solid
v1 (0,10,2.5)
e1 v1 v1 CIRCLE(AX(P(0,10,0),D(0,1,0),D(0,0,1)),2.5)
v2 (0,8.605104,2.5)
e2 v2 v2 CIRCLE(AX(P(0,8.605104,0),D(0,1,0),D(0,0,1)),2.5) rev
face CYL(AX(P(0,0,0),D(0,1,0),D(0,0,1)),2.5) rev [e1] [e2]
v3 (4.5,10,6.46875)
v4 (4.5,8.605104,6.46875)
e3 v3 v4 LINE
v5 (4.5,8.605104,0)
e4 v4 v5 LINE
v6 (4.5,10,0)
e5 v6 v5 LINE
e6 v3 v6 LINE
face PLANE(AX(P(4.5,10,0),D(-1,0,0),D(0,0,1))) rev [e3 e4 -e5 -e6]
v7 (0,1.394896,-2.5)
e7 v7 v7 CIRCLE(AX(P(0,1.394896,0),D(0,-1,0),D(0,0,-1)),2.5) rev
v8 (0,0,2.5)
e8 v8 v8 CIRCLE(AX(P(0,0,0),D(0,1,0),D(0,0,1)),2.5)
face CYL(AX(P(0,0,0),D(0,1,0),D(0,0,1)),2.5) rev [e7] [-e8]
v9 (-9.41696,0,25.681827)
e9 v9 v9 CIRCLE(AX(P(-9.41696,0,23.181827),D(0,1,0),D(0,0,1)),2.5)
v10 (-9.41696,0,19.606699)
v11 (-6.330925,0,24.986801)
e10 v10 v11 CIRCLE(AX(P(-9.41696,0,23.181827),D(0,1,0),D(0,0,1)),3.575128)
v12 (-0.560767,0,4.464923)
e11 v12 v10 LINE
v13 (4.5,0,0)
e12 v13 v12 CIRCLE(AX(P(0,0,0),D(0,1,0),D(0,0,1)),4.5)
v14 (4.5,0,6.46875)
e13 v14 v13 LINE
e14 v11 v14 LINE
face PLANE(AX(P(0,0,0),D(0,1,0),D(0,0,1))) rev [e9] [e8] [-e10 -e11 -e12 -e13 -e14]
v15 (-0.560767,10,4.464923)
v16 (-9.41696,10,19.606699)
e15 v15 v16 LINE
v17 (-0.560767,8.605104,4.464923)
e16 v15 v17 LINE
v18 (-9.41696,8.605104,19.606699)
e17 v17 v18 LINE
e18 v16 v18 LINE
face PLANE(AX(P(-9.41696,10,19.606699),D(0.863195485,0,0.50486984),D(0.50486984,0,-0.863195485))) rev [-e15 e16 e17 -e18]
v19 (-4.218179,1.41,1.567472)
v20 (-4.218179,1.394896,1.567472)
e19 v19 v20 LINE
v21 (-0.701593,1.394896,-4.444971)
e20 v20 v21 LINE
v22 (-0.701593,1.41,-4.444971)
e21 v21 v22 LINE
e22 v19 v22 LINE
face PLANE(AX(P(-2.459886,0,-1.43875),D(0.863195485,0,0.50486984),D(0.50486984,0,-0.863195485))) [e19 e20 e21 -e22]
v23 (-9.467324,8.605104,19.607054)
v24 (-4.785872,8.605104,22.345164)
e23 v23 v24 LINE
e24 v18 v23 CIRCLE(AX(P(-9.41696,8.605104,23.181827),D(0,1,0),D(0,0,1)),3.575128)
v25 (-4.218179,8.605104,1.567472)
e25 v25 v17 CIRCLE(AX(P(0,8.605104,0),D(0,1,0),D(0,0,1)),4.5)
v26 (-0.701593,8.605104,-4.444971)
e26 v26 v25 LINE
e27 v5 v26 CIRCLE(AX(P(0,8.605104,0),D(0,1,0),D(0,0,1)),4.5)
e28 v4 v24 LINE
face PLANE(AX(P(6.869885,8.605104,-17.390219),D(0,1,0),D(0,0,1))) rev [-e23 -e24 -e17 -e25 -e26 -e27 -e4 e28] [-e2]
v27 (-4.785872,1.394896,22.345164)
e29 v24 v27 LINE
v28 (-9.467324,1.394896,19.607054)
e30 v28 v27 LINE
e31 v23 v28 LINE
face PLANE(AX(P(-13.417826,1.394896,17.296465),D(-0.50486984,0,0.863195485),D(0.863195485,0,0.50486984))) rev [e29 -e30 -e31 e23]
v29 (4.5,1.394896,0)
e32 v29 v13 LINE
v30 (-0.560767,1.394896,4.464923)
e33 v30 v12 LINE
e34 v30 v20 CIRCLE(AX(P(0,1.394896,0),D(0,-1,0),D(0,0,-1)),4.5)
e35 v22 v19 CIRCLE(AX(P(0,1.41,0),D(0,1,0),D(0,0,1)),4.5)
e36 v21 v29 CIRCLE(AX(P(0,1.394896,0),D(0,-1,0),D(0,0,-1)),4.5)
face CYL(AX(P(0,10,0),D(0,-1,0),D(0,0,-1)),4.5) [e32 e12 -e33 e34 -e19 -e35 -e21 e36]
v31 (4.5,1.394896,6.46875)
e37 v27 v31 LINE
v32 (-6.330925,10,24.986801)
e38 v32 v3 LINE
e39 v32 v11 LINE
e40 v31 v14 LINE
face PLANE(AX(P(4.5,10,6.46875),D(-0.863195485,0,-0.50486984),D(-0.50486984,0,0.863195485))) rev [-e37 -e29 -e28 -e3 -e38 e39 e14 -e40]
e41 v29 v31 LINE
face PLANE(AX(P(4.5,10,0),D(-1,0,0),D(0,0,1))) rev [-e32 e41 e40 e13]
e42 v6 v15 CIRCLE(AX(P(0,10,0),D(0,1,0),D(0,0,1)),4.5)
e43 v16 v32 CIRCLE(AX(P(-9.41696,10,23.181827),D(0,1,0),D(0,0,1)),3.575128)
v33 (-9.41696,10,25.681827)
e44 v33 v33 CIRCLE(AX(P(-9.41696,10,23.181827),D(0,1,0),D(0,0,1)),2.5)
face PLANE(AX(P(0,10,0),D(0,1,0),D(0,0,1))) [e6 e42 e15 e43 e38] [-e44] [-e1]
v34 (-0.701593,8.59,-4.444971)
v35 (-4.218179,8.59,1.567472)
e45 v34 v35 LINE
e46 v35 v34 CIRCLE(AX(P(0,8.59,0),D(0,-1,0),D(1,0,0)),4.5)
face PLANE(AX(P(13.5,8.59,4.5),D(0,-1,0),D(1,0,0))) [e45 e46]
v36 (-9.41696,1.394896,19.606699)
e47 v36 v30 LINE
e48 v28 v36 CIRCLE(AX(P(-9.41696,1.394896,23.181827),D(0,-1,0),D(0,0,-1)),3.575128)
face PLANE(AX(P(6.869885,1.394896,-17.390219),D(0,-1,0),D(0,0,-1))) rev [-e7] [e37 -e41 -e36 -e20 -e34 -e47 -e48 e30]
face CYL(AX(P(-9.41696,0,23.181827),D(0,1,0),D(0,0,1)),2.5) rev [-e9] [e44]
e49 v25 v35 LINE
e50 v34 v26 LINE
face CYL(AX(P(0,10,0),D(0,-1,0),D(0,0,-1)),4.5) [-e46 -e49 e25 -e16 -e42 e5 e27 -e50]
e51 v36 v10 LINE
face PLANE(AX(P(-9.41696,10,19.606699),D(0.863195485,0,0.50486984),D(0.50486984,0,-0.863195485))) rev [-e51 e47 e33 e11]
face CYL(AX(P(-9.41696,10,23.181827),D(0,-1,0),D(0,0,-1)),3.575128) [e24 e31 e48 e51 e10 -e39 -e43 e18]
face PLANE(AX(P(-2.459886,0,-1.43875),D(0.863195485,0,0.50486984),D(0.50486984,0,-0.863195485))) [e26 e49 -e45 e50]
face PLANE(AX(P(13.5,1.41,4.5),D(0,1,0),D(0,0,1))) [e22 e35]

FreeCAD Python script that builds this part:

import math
import FreeCAD as App
import Part
import Sketcher

V = App.Vector
Q = App.Units.Quantity

doc = App.newDocument("Part")
params = doc.addObject("Spreadsheet::Sheet", "Params")
for row, (alias, value) in enumerate([
    ("sketch1_radius", "4.5 mm"),
    ("pad1_length", "10 mm"),
    ("sketch2_width", "18 mm"),
    ("sketch2_height", "7.18 mm"),
    ("pocket1_length", "4.5 mm"),
    ("pocket1_length2", "10 mm"),
    ("sketch3_diameter", "5 mm"),
    ("sketch4_diameter", "5 mm"),
    ("pocket4_length", "10 mm"),
], start=1):
    params.set(f"A{row}", alias)
    params.set(f"B{row}", "=" + value)
    params.setAlias(f"B{row}", alias)

body = doc.addObject("PartDesign::Body", "Body")

# Sketch on XZ plane
sketch1 = body.newObject("Sketcher::SketchObject", "Sketch")
sketch1.AttachmentSupport = (doc.getObject("XZ_Plane"), [""])
sketch1.MapMode = "FlatFace"
sketch1.addGeometry(Part.LineSegment(V(4.5, 6.5, 0), V(4.5, 0, 0)), False)
sketch1.addGeometry(Part.ArcOfCircle(Part.Circle(V(0, 0, 0), V(0, 0, 1), 4.5), math.radians(97), math.radians(360)), False)
sketch1.addGeometry(Part.LineSegment(V(-0.6, 4.5, 0), V(-9.4, 19.6, 0)), False)
sketch1.addGeometry(Part.ArcOfCircle(Part.Circle(V(-9.4, 23.2, 0), V(0, 0, 1), 3.6), math.radians(30), math.radians(270)), False)
sketch1.addGeometry(Part.LineSegment(V(-6.3, 25, 0), V(4.5, 6.5, 0)), False)
sketch1.addConstraint(Sketcher.Constraint("Tangent", 0, 2, 1, 2))
sketch1.addConstraint(Sketcher.Constraint("Coincident", 1, 1, 2, 1))
sketch1.addConstraint(Sketcher.Constraint("Coincident", 2, 2, 3, 2))
sketch1.addConstraint(Sketcher.Constraint("Tangent", 3, 1, 4, 1))
sketch1.addConstraint(Sketcher.Constraint("Coincident", 4, 2, 0, 1))
sketch1.addConstraint(Sketcher.Constraint("Vertical", 0))
sketch1.addConstraint(Sketcher.Constraint("Coincident", 1, 3, -1, 1))
sketch1.addConstraint(Sketcher.Constraint("Parallel", 2, 4))
sketch1.addConstraint(Sketcher.Constraint("Vertical", 3, 3, 2, 2))
sketch1.addConstraint(Sketcher.Constraint("Radius", 1, Q("4.5 mm")))
sketch1.addConstraint(Sketcher.Constraint("Radius", 3, Q("3.575128 mm")))
sketch1.addConstraint(Sketcher.Constraint("DistanceY", 0, 2, 0, 1, Q("6.46875 mm")))
sketch1.addConstraint(Sketcher.Constraint("DistanceY", -1, 1, 2, 2, Q("19.606699 mm")))
sketch1.addConstraint(Sketcher.Constraint("DistanceY", -1, 1, 3, 1, Q("24.986801 mm")))
sketch1.setExpression("Constraints[9]", "Params.sketch1_radius")
pad1 = body.newObject("PartDesign::Pad", "Pad")
pad1.Profile = sketch1
pad1.setExpression("Length", "Params.pad1_length")
pad1.Reversed = True

# Sketch on XY plane
sketch2 = body.newObject("Sketcher::SketchObject", "Sketch001")
sketch2.AttachmentSupport = (doc.getObject("XY_Plane"), [""])
sketch2.MapMode = "FlatFace"
sketch2.addGeometry(Part.LineSegment(V(-4, 9, 0), V(-4, 1, 0)), False)
sketch2.addGeometry(Part.LineSegment(V(-4, 1, 0), V(14, 1, 0)), False)
sketch2.addGeometry(Part.LineSegment(V(14, 1, 0), V(14, 9, 0)), False)
sketch2.addGeometry(Part.LineSegment(V(14, 9, 0), V(-4, 9, 0)), False)
sketch2.addConstraint(Sketcher.Constraint("Coincident", 0, 2, 1, 1))
sketch2.addConstraint(Sketcher.Constraint("Coincident", 1, 2, 2, 1))
sketch2.addConstraint(Sketcher.Constraint("Coincident", 2, 2, 3, 1))
sketch2.addConstraint(Sketcher.Constraint("Coincident", 3, 2, 0, 1))
sketch2.addConstraint(Sketcher.Constraint("Vertical", 0))
sketch2.addConstraint(Sketcher.Constraint("Horizontal", 1))
sketch2.addConstraint(Sketcher.Constraint("Vertical", 2))
sketch2.addConstraint(Sketcher.Constraint("Horizontal", 3))
sketch2.addConstraint(Sketcher.Constraint("DistanceX", 1, 1, 1, 2, Q("18 mm")))
sketch2.addConstraint(Sketcher.Constraint("DistanceY", 0, 2, 0, 1, Q("7.18 mm")))
sketch2.addConstraint(Sketcher.Constraint("DistanceX", 0, 2, -1, 1, Q("4.5 mm")))
sketch2.addConstraint(Sketcher.Constraint("DistanceY", -1, 1, 0, 2, Q("1.41 mm")))
sketch2.setExpression("Constraints[8]", "Params.sketch2_width")
sketch2.setExpression("Constraints[9]", "Params.sketch2_height")
pocket1 = body.newObject("PartDesign::Pocket", "Pocket")
pocket1.Profile = sketch2
pocket1.Type = "TwoLengths"
pocket1.setExpression("Length", "Params.pocket1_length")
pocket1.setExpression("Length2", "Params.pocket1_length2")
pocket1.Reversed = True

# Sketch on XZ plane
sketch3 = body.newObject("Sketcher::SketchObject", "Sketch002")
sketch3.AttachmentSupport = (doc.getObject("XZ_Plane"), [""])
sketch3.MapMode = "FlatFace"
sketch3.AttachmentOffset = App.Placement(V(0, 0, -10), App.Rotation())
sketch3.addGeometry(Part.Circle(V(0, 0, 0), V(0, 0, 1), 2.5), False)
sketch3.addConstraint(Sketcher.Constraint("Coincident", 0, 3, -1, 1))
sketch3.addConstraint(Sketcher.Constraint("Diameter", 0, Q("5 mm")))
sketch3.setExpression("Constraints[1]", "Params.sketch3_diameter")
pocket2 = body.newObject("PartDesign::Pocket", "Pocket001")
pocket2.Profile = sketch3
pocket2.Type = "ThroughAll"
pocket2.Reversed = True

# Sketch on XZ plane
sketch4 = body.newObject("Sketcher::SketchObject", "Sketch003")
sketch4.AttachmentSupport = (doc.getObject("XZ_Plane"), [""])
sketch4.MapMode = "FlatFace"
sketch4.AttachmentOffset = App.Placement(V(0, 0, -10), App.Rotation())
sketch4.addGeometry(Part.Circle(V(-9.4, 23.2, 0), V(0, 0, 1), 2.5), False)
sketch4.addConstraint(Sketcher.Constraint("Diameter", 0, Q("5 mm")))
sketch4.addConstraint(Sketcher.Constraint("DistanceX", 0, 3, -1, 1, Q("9.41696 mm")))
sketch4.addConstraint(Sketcher.Constraint("DistanceY", -1, 1, 0, 3, Q("23.181827 mm")))
sketch4.setExpression("Constraints[0]", "Params.sketch4_diameter")
pocket3 = body.newObject("PartDesign::Pocket", "Pocket002")
pocket3.Profile = sketch4
pocket3.Type = "ThroughAll"
pocket3.Reversed = True

# Sketch on an angled plane
sketch5 = body.newObject("Sketcher::SketchObject", "Sketch004")
sketch5.Placement = App.Placement(V(6.172069, 0, 3.609949), App.Rotation(V(0.50486984, 0, -0.863195485), V(0, 1.000000001, 0), V(0.863195485, 0, 0.50486984), "ZXY"))
sketch5.addGeometry(Part.LineSegment(V(-22, 9, 0), V(-22, 1, 0)), False)
sketch5.addGeometry(Part.LineSegment(V(-22, 1, 0), V(18, 1, 0)), False)
sketch5.addGeometry(Part.LineSegment(V(18, 1, 0), V(18, 9, 0)), False)
sketch5.addGeometry(Part.LineSegment(V(18, 9, 0), V(-22, 9, 0)), False)
sketch5.addConstraint(Sketcher.Constraint("Coincident", 0, 2, 1, 1))
sketch5.addConstraint(Sketcher.Constraint("Coincident", 1, 2, 2, 1))
sketch5.addConstraint(Sketcher.Constraint("Coincident", 2, 2, 3, 1))
sketch5.addConstraint(Sketcher.Constraint("Coincident", 3, 2, 0, 1))
sketch5.addConstraint(Sketcher.Constraint("Vertical", 0))
sketch5.addConstraint(Sketcher.Constraint("Horizontal", 1))
sketch5.addConstraint(Sketcher.Constraint("Vertical", 2))
sketch5.addConstraint(Sketcher.Constraint("Horizontal", 3))
sketch5.addConstraint(Sketcher.Constraint("DistanceY", 0, 2, 0, 1, Q("7.210209 mm")))
sketch5.addConstraint(Sketcher.Constraint("DistanceX", 1, 1, 1, 2, Q("40.184042 mm")))
sketch5.addConstraint(Sketcher.Constraint("DistanceX", 0, 2, -1, 1, Q("21.704487 mm")))
sketch5.addConstraint(Sketcher.Constraint("DistanceY", -1, 1, 0, 2, Q("1.394896 mm")))
pocket4 = body.newObject("PartDesign::Pocket", "Pocket003")
pocket4.Profile = sketch5
pocket4.setExpression("Length", "Params.pocket4_length")

doc.recompute()
